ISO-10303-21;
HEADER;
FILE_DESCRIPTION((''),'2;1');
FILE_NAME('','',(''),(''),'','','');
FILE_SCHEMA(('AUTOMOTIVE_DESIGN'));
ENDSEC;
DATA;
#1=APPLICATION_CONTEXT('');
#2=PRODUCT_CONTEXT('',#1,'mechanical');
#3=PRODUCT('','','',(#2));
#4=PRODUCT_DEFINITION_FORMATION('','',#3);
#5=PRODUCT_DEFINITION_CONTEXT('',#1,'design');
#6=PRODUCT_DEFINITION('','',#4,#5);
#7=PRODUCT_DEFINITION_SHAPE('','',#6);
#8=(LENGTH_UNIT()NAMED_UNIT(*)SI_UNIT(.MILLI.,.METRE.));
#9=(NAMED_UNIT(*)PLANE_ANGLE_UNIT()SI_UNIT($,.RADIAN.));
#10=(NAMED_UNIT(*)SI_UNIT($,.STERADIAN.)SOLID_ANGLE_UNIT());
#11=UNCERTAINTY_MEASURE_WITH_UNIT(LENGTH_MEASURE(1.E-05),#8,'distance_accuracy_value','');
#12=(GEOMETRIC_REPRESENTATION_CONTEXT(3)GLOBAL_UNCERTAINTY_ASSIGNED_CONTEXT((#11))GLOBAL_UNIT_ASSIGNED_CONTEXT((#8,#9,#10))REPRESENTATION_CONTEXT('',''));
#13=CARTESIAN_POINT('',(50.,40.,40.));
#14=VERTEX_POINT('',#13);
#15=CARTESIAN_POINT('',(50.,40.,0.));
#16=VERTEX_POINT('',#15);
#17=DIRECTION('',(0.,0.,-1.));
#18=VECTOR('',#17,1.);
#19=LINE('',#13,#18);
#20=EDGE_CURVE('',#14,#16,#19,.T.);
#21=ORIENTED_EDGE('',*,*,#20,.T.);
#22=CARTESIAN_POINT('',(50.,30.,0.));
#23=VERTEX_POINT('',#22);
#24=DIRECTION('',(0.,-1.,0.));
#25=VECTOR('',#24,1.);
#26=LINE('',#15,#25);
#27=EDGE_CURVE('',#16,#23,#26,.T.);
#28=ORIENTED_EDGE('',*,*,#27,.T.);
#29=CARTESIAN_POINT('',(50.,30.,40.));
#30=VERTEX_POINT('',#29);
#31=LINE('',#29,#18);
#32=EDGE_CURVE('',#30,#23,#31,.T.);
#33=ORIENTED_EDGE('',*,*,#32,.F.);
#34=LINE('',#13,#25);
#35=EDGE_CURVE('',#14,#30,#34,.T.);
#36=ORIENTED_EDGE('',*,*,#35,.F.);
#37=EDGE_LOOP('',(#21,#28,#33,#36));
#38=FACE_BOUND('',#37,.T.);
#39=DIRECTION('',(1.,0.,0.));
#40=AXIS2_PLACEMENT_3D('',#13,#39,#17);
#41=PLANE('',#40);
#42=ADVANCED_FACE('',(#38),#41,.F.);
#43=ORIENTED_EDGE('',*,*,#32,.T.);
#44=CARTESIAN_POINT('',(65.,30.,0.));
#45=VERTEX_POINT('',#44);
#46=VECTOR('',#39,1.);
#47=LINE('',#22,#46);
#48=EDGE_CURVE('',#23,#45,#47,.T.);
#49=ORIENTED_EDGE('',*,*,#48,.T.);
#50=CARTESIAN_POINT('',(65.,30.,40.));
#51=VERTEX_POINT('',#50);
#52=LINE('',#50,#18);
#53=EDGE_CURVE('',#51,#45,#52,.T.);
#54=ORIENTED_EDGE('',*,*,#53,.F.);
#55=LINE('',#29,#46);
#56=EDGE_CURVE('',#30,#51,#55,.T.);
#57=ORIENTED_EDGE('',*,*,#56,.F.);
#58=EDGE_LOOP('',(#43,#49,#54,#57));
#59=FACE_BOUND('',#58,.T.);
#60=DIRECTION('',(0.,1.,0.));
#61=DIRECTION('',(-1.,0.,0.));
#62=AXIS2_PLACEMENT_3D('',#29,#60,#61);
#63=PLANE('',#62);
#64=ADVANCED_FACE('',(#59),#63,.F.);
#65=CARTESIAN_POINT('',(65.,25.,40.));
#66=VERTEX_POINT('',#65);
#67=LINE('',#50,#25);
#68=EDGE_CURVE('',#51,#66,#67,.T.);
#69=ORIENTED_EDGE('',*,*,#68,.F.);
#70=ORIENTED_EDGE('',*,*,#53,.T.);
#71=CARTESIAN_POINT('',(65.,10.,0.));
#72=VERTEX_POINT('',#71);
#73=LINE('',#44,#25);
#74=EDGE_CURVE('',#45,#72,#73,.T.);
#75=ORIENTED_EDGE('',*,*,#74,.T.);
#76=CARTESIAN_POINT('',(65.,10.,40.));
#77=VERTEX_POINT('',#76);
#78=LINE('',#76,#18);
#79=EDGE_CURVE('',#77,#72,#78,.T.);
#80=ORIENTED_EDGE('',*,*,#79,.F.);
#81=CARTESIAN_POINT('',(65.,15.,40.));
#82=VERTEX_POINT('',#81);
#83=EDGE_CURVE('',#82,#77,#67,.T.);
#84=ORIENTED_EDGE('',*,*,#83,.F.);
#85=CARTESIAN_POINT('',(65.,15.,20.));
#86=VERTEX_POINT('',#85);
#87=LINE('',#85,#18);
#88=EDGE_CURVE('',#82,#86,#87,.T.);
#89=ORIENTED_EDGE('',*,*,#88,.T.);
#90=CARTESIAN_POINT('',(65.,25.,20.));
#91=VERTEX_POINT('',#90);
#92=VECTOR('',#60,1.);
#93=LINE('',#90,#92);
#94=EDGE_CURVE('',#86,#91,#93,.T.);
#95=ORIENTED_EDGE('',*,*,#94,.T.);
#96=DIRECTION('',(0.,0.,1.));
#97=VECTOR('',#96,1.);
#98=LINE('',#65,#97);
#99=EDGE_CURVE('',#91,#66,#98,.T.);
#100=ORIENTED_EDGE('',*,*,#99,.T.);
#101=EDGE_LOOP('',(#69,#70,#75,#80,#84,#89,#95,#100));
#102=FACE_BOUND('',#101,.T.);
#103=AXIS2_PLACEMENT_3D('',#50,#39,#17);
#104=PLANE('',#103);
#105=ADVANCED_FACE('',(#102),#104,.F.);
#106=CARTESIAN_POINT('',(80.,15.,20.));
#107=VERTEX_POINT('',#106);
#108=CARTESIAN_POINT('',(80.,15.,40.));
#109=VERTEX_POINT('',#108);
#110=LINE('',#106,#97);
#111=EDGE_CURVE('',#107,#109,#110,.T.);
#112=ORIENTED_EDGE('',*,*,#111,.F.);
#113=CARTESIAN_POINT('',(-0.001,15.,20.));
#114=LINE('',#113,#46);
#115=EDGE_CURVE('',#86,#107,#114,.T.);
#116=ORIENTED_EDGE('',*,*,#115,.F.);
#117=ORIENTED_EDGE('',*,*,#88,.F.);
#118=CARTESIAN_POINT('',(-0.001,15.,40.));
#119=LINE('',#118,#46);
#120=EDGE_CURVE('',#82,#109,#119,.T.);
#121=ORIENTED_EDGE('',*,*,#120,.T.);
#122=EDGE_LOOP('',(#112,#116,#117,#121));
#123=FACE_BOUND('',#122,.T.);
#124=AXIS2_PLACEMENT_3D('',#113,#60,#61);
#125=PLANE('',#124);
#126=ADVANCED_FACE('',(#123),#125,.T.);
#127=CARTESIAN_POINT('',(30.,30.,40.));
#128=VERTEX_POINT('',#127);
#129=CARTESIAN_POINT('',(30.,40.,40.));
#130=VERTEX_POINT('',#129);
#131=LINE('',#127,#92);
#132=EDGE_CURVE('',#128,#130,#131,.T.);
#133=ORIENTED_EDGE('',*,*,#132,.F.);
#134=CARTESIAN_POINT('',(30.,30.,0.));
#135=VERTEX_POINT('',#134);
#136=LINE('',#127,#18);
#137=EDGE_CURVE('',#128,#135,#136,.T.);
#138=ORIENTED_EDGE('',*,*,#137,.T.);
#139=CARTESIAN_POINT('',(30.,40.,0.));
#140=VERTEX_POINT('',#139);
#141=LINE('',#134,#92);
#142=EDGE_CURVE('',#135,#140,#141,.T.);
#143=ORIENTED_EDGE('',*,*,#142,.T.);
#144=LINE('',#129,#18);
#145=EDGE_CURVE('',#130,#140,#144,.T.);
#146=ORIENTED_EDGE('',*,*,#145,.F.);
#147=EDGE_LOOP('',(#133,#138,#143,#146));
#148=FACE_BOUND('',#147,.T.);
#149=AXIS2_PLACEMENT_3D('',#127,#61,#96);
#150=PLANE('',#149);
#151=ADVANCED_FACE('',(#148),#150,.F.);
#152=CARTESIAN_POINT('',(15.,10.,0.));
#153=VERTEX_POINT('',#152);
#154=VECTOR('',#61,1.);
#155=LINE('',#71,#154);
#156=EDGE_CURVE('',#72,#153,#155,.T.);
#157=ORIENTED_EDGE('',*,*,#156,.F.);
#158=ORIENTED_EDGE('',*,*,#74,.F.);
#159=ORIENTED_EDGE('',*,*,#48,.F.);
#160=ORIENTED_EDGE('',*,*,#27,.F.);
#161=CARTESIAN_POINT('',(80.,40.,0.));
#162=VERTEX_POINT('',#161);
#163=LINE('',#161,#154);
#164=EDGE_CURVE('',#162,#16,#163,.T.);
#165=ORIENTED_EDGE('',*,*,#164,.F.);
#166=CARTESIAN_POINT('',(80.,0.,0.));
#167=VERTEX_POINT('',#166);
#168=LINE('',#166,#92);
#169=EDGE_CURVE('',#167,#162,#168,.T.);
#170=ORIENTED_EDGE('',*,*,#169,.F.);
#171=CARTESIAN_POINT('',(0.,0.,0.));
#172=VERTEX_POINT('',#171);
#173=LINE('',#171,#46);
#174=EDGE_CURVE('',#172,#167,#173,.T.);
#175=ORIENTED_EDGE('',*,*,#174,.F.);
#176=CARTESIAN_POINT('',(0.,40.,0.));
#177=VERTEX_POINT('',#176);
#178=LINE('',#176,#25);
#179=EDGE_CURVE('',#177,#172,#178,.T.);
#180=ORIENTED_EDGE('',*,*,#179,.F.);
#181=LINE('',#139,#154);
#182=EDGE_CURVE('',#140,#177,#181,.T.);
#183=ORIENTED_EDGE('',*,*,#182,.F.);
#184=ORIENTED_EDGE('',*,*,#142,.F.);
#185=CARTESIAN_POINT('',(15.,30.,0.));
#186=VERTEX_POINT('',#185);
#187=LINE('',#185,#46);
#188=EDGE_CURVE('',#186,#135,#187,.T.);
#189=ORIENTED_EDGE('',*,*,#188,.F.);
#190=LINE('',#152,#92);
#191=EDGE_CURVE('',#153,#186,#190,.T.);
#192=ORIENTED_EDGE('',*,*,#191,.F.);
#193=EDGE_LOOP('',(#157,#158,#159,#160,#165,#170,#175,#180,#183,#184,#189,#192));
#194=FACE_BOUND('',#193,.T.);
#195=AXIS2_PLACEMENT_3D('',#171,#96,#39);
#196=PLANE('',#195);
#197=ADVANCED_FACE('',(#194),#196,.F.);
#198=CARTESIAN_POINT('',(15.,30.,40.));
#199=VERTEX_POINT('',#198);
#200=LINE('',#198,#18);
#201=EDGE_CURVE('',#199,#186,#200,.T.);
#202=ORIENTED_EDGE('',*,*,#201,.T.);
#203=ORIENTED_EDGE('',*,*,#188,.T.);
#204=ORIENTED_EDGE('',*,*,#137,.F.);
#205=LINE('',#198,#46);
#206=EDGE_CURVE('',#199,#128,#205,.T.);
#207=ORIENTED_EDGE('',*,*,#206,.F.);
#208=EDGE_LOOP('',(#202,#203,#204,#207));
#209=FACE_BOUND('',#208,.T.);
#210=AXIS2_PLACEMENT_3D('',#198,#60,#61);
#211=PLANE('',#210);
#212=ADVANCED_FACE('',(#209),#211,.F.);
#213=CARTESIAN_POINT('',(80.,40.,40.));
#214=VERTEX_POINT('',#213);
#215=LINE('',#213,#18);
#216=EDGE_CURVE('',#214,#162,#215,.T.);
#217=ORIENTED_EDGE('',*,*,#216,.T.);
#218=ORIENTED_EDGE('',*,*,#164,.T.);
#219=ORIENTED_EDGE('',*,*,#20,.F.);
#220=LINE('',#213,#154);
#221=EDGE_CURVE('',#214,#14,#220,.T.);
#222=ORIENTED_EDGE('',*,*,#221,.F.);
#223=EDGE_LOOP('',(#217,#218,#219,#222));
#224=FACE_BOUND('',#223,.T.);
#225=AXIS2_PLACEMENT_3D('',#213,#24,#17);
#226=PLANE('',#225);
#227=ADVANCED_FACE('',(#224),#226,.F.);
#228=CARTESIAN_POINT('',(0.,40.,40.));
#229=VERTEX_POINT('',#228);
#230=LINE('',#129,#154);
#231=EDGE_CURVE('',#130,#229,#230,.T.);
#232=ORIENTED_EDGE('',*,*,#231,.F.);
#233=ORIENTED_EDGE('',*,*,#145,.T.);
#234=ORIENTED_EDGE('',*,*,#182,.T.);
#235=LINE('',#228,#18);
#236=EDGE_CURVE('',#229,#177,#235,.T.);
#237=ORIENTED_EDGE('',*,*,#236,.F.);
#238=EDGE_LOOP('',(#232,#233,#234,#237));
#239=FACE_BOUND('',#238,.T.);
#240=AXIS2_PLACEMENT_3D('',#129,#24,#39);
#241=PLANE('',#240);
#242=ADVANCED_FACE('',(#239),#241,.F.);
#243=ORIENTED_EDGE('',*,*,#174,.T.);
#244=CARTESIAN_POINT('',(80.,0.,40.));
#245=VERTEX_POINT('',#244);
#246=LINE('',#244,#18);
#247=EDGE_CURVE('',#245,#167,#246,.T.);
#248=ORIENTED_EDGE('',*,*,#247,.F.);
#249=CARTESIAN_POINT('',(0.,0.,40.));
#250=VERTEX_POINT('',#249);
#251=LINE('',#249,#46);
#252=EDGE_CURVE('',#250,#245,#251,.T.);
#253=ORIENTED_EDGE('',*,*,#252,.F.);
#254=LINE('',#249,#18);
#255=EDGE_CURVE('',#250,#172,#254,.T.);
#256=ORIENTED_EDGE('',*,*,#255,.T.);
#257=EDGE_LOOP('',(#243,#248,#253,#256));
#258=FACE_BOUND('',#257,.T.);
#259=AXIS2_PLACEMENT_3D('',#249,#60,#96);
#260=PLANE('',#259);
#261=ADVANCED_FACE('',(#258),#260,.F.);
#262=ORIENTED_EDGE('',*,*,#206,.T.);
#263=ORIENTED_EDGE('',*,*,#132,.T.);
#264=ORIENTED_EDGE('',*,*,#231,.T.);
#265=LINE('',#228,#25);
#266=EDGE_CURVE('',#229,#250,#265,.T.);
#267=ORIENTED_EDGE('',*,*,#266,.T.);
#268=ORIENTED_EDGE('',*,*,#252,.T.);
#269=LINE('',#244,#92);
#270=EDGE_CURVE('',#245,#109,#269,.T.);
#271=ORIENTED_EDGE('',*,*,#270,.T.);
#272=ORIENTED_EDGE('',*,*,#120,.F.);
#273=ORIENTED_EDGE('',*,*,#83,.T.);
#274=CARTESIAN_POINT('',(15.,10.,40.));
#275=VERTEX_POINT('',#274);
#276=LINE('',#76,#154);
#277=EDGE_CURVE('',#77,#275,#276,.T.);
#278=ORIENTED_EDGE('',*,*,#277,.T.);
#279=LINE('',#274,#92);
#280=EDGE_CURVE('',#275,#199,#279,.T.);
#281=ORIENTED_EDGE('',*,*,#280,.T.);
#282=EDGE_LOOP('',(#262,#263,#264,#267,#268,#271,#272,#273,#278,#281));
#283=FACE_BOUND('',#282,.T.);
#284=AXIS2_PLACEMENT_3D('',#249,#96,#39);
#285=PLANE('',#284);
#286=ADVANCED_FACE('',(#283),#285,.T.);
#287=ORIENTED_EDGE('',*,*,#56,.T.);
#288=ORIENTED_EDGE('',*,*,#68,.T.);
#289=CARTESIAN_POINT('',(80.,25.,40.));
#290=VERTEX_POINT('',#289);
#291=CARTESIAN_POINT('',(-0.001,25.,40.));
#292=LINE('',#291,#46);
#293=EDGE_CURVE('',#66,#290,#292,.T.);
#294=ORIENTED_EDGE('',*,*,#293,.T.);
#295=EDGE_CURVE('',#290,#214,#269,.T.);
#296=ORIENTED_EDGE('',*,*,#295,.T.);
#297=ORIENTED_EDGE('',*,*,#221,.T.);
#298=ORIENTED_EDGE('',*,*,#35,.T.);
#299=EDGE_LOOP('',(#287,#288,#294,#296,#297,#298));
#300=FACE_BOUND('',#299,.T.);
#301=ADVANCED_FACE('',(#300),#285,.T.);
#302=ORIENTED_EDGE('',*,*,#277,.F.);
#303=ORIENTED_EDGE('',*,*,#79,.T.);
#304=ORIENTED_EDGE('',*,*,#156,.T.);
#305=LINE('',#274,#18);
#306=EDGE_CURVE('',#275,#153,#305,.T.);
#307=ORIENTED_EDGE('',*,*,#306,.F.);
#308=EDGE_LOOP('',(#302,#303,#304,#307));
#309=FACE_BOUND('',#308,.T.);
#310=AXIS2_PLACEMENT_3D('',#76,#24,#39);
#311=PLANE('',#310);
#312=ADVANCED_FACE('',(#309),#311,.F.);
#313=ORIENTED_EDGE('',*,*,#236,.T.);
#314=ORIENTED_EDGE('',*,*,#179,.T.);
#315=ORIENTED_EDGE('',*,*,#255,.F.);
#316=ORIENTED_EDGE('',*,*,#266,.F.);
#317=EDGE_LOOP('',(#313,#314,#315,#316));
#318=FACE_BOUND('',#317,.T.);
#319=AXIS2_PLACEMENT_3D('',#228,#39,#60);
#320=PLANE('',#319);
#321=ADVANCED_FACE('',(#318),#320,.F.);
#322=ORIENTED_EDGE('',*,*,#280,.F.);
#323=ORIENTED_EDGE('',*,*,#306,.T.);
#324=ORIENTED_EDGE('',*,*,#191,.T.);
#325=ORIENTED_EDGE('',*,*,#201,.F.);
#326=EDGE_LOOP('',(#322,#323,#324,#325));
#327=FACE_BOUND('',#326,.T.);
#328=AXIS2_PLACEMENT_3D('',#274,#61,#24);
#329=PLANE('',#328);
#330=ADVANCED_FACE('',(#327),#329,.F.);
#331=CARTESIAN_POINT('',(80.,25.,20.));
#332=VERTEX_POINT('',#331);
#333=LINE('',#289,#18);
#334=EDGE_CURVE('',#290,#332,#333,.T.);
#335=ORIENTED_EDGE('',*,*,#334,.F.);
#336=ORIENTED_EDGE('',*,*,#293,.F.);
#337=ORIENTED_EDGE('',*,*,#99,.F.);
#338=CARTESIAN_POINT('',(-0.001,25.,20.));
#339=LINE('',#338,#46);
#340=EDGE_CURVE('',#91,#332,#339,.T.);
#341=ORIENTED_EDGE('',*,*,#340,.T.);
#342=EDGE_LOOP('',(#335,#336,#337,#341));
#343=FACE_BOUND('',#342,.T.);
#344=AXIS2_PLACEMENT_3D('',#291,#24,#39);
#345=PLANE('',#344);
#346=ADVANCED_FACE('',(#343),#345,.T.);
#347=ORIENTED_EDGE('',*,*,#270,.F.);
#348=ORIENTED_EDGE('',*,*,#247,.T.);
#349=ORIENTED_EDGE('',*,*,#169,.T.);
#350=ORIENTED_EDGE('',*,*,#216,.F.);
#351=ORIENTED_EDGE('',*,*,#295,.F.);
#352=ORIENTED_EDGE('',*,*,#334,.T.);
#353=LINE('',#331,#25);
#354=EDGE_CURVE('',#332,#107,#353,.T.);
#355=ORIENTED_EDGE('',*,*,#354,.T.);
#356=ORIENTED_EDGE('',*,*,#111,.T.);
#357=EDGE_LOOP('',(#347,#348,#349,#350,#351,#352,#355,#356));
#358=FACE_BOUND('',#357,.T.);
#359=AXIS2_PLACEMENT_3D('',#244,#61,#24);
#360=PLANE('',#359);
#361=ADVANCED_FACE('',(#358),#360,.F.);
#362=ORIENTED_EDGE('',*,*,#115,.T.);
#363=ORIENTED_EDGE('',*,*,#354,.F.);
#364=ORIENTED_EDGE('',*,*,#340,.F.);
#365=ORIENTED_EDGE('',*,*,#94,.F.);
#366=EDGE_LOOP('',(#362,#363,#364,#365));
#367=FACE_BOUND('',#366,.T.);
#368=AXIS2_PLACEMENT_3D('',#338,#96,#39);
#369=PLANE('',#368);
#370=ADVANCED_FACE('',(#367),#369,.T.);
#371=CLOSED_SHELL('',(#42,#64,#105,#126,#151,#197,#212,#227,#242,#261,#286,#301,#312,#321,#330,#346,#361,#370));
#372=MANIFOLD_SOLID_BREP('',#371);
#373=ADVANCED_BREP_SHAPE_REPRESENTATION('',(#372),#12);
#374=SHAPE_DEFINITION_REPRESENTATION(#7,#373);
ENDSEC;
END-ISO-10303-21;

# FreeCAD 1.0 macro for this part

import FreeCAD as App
import Part
import Sketcher

V = App.Vector

doc = App.newDocument("Part")
body = doc.addObject("PartDesign::Body", "Body")

# Sketch on XY plane
sketch1 = body.newObject("Sketcher::SketchObject", "Sketch")
sketch1.AttachmentSupport = (doc.getObject("XY_Plane"), [""])
sketch1.MapMode = "FlatFace"
sketch1.addGeometry([
    Part.LineSegment(V(0, 40, 0), V(0, 0, 0)),  # 0
    Part.LineSegment(V(0, 0, 0), V(80, 0, 0)),  # 1
    Part.LineSegment(V(80, 0, 0), V(80, 40, 0)),  # 2
    Part.LineSegment(V(80, 40, 0), V(50, 40, 0)),  # 3
    Part.LineSegment(V(50, 40, 0), V(50, 30, 0)),  # 4
    Part.LineSegment(V(50, 30, 0), V(65, 30, 0)),  # 5
    Part.LineSegment(V(65, 30, 0), V(65, 10, 0)),  # 6
    Part.LineSegment(V(65, 10, 0), V(15, 10, 0)),  # 7
    Part.LineSegment(V(15, 10, 0), V(15, 30, 0)),  # 8
    Part.LineSegment(V(15, 30, 0), V(30, 30, 0)),  # 9
    Part.LineSegment(V(30, 30, 0), V(30, 40, 0)),  # 10
    Part.LineSegment(V(30, 40, 0), V(0, 40, 0)),  # 11
], False)
sketch1.addConstraint([
    Sketcher.Constraint("Coincident", 0, 2, 1, 1),
    Sketcher.Constraint("Coincident", 1, 2, 2, 1),
    Sketcher.Constraint("Coincident", 2, 2, 3, 1),
    Sketcher.Constraint("Coincident", 3, 2, 4, 1),
    Sketcher.Constraint("Coincident", 4, 2, 5, 1),
    Sketcher.Constraint("Coincident", 5, 2, 6, 1),
    Sketcher.Constraint("Coincident", 6, 2, 7, 1),
    Sketcher.Constraint("Coincident", 7, 2, 8, 1),
    Sketcher.Constraint("Coincident", 8, 2, 9, 1),
    Sketcher.Constraint("Coincident", 9, 2, 10, 1),
    Sketcher.Constraint("Coincident", 10, 2, 11, 1),
    Sketcher.Constraint("Coincident", 11, 2, 0, 1),
    Sketcher.Constraint("Vertical", 0),
    Sketcher.Constraint("Horizontal", 1),
    Sketcher.Constraint("Vertical", 2),
    Sketcher.Constraint("Horizontal", 3),
    Sketcher.Constraint("Vertical", 4),
    Sketcher.Constraint("Horizontal", 5),
    Sketcher.Constraint("Vertical", 6),
    Sketcher.Constraint("Horizontal", 7),
    Sketcher.Constraint("Vertical", 8),
    Sketcher.Constraint("Horizontal", 9),
    Sketcher.Constraint("Vertical", 10),
    Sketcher.Constraint("Horizontal", 11),
    Sketcher.Constraint("Coincident", 0, 2, -1, 1),
    Sketcher.Constraint("Horizontal", 5, 2, 8, 2),
    Sketcher.Constraint("Horizontal", 3, 2, 10, 2),
    Sketcher.Constraint("Equal", 5, 9),
    Sketcher.Constraint("Equal", 3, 11),
    Sketcher.Constraint("DistanceX", 1, 1, 1, 2, 80.0),
    Sketcher.Constraint("DistanceX", 3, 2, 3, 1, 30.0),
    Sketcher.Constraint("DistanceX", 5, 1, 5, 2, 15.0),
    Sketcher.Constraint("DistanceY", 0, 2, 0, 1, 40.0),
    Sketcher.Constraint("DistanceY", 4, 2, 4, 1, 10.0),
    Sketcher.Constraint("DistanceY", 6, 2, 6, 1, 20.0),
])
pad1 = body.newObject("PartDesign::Pad", "Pad")
pad1.Profile = sketch1
pad1.Length = 40

# Sketch on YZ plane
sketch2 = body.newObject("Sketcher::SketchObject", "Sketch001")
sketch2.AttachmentSupport = (doc.getObject("YZ_Plane"), [""])
sketch2.MapMode = "FlatFace"
sketch2.AttachmentOffset = App.Placement(V(0, 0, 80), App.Rotation())
sketch2.addGeometry([
    Part.LineSegment(V(25, 40, 0), V(15, 40, 0)),
    Part.LineSegment(V(15, 40, 0), V(15, 20, 0)),
    Part.LineSegment(V(15, 20, 0), V(25, 20, 0)),
    Part.LineSegment(V(25, 20, 0), V(25, 40, 0)),
], False)
sketch2.addConstraint([
    Sketcher.Constraint("Coincident", 0, 2, 1, 1),
    Sketcher.Constraint("Coincident", 1, 2, 2, 1),
    Sketcher.Constraint("Coincident", 2, 2, 3, 1),
    Sketcher.Constraint("Coincident", 3, 2, 0, 1),
    Sketcher.Constraint("Horizontal", 0),
    Sketcher.Constraint("Vertical", 1),
    Sketcher.Constraint("Horizontal", 2),
    Sketcher.Constraint("Vertical", 3),
    Sketcher.Constraint("DistanceX", 0, 2, 0, 1, 10.0),
    Sketcher.Constraint("DistanceY", 1, 2, 1, 1, 20.0),
    Sketcher.Constraint("DistanceX", -1, 1, 0, 2, 15.0),
    Sketcher.Constraint("DistanceY", -1, 1, 0, 2, 40.0),
])
pocket1 = body.newObject("PartDesign::Pocket", "Pocket")
pocket1.Profile = sketch2
pocket1.Type = "UpToFirst"

doc.recompute()
